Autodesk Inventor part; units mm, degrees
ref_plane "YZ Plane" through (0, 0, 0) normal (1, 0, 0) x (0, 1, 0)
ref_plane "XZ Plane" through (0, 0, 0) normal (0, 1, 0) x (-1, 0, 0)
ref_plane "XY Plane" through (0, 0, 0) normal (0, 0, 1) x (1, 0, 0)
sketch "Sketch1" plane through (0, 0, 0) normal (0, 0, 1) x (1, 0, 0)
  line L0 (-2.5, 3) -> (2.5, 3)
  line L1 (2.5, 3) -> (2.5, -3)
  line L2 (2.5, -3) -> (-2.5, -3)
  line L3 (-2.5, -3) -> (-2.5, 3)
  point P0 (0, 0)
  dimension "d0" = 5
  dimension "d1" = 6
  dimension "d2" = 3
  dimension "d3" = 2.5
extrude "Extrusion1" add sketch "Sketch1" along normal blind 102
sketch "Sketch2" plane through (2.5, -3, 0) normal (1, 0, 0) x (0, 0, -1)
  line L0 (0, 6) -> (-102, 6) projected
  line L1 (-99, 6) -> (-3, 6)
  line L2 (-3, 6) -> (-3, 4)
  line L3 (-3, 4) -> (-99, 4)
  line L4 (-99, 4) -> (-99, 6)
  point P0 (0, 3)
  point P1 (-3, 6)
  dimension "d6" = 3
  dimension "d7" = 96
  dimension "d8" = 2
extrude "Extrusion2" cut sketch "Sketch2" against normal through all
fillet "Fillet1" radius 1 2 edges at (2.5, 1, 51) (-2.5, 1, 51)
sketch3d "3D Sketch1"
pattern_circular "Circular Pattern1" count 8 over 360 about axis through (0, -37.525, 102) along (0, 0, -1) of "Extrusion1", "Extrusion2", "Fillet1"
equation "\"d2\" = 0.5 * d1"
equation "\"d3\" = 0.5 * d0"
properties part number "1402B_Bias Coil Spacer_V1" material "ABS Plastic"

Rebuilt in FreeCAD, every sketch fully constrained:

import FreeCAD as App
import Part
import Sketcher
from FreeCAD import Vector
Q = App.Units.Quantity


def edges_at(feature, points):
    """Names of the edges that pass closest to the given points."""
    edges = feature.Shape.Edges
    near = lambda p: min(range(len(edges)), key=lambda i: edges[i].distToShape(Part.Vertex(*p))[0])
    return sorted({f"Edge{near(p) + 1}" for p in points})


def add_polygon(sketch, points):
    """Adds a closed chain of lines whose ends are joined by coincident constraints."""
    first, n = sketch.GeometryCount, len(points)
    for a, b in zip(points, points[1:] + points[:1]):
        sketch.addGeometry(Part.LineSegment(App.Vector(*a, 0), App.Vector(*b, 0)), False)
    for i in range(n):
        sketch.addConstraint(Sketcher.Constraint("Coincident", first + i, 2, first + (i + 1) % n, 1))

doc = App.newDocument("Part")
body = doc.addObject("PartDesign::Body", "Body")
body.AllowCompound = True

sketch1 = body.newObject("Sketcher::SketchObject", "Sketch")
sketch1.AttachmentSupport = (doc.getObject("XY_Plane"), [""])
sketch1.MapMode = "FlatFace"
add_polygon(sketch1, [(2, 3), (-2, 3), (-2, -3), (2, -3)])
sketch1.addConstraint([
    Sketcher.Constraint("Horizontal", 0),
    Sketcher.Constraint("Vertical", 1),
    Sketcher.Constraint("Horizontal", 2),
    Sketcher.Constraint("Vertical", 3),
    Sketcher.Constraint("Symmetric", 0, 2, 2, 2, -1, 1),
    Sketcher.Constraint("DistanceX", 0, 2, 0, 1, Q("5 mm")),
    Sketcher.Constraint("DistanceY", 1, 2, 1, 1, Q("6 mm")),
])
pad1 = body.newObject("PartDesign::Pad", "Pad")
pad1.Profile = sketch1
pad1.Length = 102

sketch2 = body.newObject("Sketcher::SketchObject", "Sketch001")
sketch2.AttachmentSupport = (doc.getObject("YZ_Plane"), [""])
sketch2.MapMode = "FlatFace"
sketch2.AttachmentOffset = App.Placement(Vector(0, 0, 2.5), App.Rotation())
add_polygon(sketch2, [(1, 3), (3, 3), (3, 99), (1, 99)])
sketch2.addConstraint([
    Sketcher.Constraint("Horizontal", 0),
    Sketcher.Constraint("Vertical", 1),
    Sketcher.Constraint("Horizontal", 2),
    Sketcher.Constraint("Vertical", 3),
    Sketcher.Constraint("DistanceX", 0, 1, 0, 2, Q("2 mm")),
    Sketcher.Constraint("DistanceY", 1, 1, 1, 2, Q("96 mm")),
    Sketcher.Constraint("DistanceX", -1, 1, 0, 2, Q("3 mm")),
    Sketcher.Constraint("DistanceY", -1, 1, 0, 2, Q("3 mm")),
])
pocket1 = body.newObject("PartDesign::Pocket", "Pocket")
pocket1.Profile = sketch2
pocket1.Type = "ThroughAll"
doc.recompute()

fillet = body.newObject("PartDesign::Fillet", "Fillet")
fillet.Base = (pocket1, edges_at(pocket1, [(2.5, 1, 51), (-2.5, 1, 51)]))
fillet.Radius = 1
doc.recompute()

datumline = body.newObject("PartDesign::Line", "DatumLine")
datumline.Placement = App.Placement(Vector(0, -37.525, 0), App.Rotation(Vector(0, 0, 1), Vector(0, 0, 1)))
polarpattern = body.newObject("PartDesign::PolarPattern", "PolarPattern")
polarpattern.Originals = [pad1, pocket1, fillet]
polarpattern.Axis = (datumline, [""])
polarpattern.Angle = 360
polarpattern.Occurrences = 8
body.Tip = polarpattern

doc.recompute()
